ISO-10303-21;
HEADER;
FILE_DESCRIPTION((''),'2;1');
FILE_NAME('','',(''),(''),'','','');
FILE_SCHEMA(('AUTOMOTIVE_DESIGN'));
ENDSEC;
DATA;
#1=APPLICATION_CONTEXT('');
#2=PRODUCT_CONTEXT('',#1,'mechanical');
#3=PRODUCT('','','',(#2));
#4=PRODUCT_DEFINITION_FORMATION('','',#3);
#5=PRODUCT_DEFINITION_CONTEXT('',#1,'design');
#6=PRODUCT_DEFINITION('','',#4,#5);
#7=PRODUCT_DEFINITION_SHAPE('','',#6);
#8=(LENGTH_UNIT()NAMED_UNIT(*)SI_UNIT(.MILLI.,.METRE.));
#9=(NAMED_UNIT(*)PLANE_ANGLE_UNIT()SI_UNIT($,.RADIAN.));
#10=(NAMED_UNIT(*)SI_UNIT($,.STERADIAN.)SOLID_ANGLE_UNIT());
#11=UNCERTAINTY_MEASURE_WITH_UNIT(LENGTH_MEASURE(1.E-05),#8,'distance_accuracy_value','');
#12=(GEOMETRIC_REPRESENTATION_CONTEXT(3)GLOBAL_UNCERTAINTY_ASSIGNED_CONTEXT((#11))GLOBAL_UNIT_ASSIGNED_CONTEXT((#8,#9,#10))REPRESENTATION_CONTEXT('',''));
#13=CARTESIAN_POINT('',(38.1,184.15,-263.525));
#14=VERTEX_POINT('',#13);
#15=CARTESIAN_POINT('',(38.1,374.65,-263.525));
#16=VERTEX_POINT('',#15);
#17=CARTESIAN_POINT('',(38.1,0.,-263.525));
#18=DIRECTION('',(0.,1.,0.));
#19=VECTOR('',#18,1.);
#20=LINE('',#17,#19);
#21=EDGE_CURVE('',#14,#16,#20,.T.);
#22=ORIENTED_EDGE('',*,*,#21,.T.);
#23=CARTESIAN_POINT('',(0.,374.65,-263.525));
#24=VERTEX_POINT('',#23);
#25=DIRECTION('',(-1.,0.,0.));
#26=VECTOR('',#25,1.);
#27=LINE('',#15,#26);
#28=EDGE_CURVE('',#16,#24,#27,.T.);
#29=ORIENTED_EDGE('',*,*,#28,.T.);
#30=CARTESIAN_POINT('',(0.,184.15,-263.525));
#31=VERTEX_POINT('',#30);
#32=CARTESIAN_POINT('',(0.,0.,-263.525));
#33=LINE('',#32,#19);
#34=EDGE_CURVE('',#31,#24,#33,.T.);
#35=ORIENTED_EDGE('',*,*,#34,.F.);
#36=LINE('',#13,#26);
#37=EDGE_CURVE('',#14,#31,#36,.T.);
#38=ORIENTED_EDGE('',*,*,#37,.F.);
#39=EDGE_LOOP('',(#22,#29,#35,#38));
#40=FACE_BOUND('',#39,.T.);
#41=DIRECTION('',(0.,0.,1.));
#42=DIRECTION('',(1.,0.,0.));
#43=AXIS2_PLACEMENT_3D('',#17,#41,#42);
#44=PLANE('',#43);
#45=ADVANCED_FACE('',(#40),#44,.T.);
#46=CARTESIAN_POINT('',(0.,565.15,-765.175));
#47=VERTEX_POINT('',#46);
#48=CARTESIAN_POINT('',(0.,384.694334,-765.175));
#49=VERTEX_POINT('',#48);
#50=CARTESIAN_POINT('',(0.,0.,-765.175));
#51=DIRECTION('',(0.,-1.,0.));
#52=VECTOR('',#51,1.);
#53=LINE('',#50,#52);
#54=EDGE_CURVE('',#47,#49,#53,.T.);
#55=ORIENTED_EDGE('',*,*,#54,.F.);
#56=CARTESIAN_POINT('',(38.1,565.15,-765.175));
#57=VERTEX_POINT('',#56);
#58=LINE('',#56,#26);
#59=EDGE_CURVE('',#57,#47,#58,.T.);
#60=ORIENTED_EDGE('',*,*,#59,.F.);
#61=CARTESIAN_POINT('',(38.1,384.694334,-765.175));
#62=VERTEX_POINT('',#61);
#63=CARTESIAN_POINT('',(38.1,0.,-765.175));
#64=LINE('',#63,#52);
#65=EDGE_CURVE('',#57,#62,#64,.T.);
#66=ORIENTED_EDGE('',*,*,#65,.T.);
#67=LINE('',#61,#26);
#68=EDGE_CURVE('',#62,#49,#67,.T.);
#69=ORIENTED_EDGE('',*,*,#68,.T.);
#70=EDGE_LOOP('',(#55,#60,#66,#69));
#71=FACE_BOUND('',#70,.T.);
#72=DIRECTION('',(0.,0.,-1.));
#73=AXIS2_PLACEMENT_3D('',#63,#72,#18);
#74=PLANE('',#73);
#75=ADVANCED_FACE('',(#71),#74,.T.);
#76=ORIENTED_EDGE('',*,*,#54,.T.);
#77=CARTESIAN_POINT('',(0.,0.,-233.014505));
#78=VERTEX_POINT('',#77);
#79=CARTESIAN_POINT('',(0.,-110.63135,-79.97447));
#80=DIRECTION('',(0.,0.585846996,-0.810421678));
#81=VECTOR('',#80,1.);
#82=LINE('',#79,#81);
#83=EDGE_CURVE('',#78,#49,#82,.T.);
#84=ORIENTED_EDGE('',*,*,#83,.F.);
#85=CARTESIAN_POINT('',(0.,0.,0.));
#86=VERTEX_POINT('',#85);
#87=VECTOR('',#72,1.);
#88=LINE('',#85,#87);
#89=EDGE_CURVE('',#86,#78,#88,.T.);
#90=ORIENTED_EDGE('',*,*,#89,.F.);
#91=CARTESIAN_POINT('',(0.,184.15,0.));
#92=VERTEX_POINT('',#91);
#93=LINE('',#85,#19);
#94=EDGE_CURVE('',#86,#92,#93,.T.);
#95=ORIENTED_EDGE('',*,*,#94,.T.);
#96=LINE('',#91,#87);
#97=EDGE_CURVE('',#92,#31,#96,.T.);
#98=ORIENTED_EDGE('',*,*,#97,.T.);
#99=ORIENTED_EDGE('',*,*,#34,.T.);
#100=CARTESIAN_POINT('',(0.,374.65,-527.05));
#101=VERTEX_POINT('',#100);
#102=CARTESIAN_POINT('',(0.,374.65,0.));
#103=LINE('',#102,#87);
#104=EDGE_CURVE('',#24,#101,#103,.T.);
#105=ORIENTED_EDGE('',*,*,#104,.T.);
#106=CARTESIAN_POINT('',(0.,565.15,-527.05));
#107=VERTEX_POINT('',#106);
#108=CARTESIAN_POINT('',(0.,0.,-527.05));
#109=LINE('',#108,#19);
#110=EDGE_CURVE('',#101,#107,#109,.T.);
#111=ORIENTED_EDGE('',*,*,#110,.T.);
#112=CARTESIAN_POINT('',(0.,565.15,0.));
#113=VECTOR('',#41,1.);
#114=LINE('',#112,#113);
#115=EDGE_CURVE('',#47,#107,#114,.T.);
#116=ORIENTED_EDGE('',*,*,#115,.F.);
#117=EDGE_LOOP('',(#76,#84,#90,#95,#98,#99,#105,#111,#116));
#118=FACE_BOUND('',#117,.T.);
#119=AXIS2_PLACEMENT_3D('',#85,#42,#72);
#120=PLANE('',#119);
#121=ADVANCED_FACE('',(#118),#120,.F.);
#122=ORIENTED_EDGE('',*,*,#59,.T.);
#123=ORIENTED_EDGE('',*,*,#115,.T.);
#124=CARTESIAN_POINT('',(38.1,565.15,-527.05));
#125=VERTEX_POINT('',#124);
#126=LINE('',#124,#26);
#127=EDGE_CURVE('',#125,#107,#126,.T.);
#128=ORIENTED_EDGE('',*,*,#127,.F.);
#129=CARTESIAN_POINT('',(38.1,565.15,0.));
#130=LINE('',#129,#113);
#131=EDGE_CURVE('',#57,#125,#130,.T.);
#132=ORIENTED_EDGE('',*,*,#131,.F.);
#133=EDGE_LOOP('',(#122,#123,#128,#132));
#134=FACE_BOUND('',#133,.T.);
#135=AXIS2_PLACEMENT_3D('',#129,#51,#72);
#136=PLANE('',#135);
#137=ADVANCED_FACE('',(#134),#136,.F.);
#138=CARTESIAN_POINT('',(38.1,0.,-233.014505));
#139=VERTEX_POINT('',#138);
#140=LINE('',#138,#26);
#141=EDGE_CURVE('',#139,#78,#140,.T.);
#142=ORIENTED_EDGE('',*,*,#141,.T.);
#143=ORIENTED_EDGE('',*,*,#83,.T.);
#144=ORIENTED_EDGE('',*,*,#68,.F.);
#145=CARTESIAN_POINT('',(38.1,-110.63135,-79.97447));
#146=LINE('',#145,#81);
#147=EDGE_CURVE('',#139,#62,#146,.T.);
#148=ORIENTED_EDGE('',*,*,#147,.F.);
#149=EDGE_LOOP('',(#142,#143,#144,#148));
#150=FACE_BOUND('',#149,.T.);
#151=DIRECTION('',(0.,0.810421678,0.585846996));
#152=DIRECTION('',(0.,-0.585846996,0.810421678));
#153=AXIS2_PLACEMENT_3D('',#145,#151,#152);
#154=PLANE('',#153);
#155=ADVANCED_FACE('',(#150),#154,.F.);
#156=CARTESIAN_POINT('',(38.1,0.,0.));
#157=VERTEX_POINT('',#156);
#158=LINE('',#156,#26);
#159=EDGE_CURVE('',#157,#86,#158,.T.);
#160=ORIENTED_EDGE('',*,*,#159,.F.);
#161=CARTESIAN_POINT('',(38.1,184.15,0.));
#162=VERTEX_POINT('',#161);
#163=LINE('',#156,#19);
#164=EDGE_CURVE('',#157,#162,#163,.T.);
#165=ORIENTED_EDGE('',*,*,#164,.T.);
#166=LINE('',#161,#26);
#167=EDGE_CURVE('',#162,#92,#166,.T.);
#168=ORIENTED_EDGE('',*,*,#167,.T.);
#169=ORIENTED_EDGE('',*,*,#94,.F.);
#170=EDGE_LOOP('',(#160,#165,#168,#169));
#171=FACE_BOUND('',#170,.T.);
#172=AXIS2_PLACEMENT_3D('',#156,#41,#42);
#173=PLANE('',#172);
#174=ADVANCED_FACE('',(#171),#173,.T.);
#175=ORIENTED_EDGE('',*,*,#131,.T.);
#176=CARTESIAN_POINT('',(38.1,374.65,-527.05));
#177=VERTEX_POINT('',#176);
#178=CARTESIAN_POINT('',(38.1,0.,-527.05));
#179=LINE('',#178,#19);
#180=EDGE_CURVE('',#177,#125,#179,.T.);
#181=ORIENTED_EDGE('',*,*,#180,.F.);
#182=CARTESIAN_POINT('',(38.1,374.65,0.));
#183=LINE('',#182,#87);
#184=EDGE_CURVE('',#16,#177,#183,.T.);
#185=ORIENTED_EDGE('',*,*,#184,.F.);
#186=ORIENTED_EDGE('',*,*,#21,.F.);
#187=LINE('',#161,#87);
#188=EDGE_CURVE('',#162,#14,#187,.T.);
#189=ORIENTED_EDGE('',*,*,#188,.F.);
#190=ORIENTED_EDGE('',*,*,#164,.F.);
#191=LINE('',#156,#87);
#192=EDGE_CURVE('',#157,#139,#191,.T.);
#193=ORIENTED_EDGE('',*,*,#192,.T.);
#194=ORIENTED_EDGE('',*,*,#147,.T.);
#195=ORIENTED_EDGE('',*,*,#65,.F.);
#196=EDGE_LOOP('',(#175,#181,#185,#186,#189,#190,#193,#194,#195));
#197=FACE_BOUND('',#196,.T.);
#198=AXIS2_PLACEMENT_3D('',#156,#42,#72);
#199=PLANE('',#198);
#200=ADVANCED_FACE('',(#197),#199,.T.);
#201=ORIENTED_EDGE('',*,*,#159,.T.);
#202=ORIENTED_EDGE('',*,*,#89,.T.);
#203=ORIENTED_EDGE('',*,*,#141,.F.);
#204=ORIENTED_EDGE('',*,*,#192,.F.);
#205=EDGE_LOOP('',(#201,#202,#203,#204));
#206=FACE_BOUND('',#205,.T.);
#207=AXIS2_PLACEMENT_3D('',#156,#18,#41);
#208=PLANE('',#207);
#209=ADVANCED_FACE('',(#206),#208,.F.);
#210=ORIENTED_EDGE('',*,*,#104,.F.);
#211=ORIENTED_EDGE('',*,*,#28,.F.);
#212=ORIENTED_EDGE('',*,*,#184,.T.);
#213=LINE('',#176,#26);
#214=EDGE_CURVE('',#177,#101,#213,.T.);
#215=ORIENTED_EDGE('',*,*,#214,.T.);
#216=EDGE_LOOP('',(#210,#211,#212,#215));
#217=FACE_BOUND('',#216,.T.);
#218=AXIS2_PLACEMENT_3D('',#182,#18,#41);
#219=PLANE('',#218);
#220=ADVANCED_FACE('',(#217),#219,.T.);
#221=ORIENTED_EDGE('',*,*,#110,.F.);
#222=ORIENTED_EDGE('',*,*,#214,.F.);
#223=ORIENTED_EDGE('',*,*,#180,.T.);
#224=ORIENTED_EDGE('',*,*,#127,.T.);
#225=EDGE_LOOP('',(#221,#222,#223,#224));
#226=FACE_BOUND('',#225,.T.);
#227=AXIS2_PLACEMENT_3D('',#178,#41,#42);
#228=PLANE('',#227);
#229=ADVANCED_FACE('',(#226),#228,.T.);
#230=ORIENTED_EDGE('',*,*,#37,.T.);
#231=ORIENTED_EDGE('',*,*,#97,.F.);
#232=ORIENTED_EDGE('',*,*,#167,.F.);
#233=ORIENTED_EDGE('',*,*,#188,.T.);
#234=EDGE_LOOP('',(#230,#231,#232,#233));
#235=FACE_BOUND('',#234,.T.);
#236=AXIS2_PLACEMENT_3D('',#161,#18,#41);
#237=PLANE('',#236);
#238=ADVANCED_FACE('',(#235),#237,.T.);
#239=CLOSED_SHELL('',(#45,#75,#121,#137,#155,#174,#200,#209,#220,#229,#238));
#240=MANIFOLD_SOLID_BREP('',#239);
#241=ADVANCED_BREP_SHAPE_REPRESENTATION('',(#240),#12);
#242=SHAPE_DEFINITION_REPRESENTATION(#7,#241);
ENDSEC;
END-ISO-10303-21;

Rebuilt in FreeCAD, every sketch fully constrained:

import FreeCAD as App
import Part
import Sketcher

V = App.Vector
Q = App.Units.Quantity

doc = App.newDocument("Part")
params = doc.addObject("Spreadsheet::Sheet", "Params")
for row, (alias, value) in enumerate([
    ("sketch1_width", "7.5 in"),
    ("sketch1_width2", "7.25 in"),
    ("sketch1_height", "9.375 in"),
    ("sketch1_height2", "10.375 in"),
    ("pad1_length", "1.5 in"),
], start=1):
    params.set(f"A{row}", alias)
    params.set(f"B{row}", "=" + value)
    params.setAlias(f"B{row}", alias)

body = doc.addObject("PartDesign::Body", "Body")

sketch1 = body.newObject("Sketcher::SketchObject", "Sketch")
sketch1.AttachmentSupport = (doc.getObject("YZ_Plane"), [""])
sketch1.MapMode = "FlatFace"
sketch1.addGeometry(Part.LineSegment(V(184, 0, 0), V(0, 0, 0)), False)
sketch1.addGeometry(Part.LineSegment(V(0, 0, 0), V(0, -233, 0)), False)
sketch1.addGeometry(Part.LineSegment(V(0, -233, 0), V(385, -765, 0)), False)
sketch1.addGeometry(Part.LineSegment(V(385, -765, 0), V(565, -765, 0)), False)
sketch1.addGeometry(Part.LineSegment(V(565, -765, 0), V(565, -527, 0)), False)
sketch1.addGeometry(Part.LineSegment(V(565, -527, 0), V(375, -527, 0)), False)
sketch1.addGeometry(Part.LineSegment(V(375, -527, 0), V(375, -264, 0)), False)
sketch1.addGeometry(Part.LineSegment(V(375, -264, 0), V(184, -264, 0)), False)
sketch1.addGeometry(Part.LineSegment(V(184, -264, 0), V(184, 0, 0)), False)
sketch1.addConstraint(Sketcher.Constraint("Coincident", 0, 2, 1, 1))
sketch1.addConstraint(Sketcher.Constraint("Coincident", 1, 2, 2, 1))
sketch1.addConstraint(Sketcher.Constraint("Coincident", 2, 2, 3, 1))
sketch1.addConstraint(Sketcher.Constraint("Coincident", 3, 2, 4, 1))
sketch1.addConstraint(Sketcher.Constraint("Coincident", 4, 2, 5, 1))
sketch1.addConstraint(Sketcher.Constraint("Coincident", 5, 2, 6, 1))
sketch1.addConstraint(Sketcher.Constraint("Coincident", 6, 2, 7, 1))
sketch1.addConstraint(Sketcher.Constraint("Coincident", 7, 2, 8, 1))
sketch1.addConstraint(Sketcher.Constraint("Coincident", 8, 2, 0, 1))
sketch1.addConstraint(Sketcher.Constraint("Horizontal", 0))
sketch1.addConstraint(Sketcher.Constraint("Vertical", 1))
sketch1.addConstraint(Sketcher.Constraint("Horizontal", 3))
sketch1.addConstraint(Sketcher.Constraint("Vertical", 4))
sketch1.addConstraint(Sketcher.Constraint("Horizontal", 5))
sketch1.addConstraint(Sketcher.Constraint("Vertical", 6))
sketch1.addConstraint(Sketcher.Constraint("Horizontal", 7))
sketch1.addConstraint(Sketcher.Constraint("Vertical", 8))
sketch1.addConstraint(Sketcher.Constraint("Coincident", 0, 2, -1, 1))
sketch1.addConstraint(Sketcher.Constraint("Equal", 5, 7))
sketch1.addConstraint(Sketcher.Constraint("Equal", 6, 8))
sketch1.addConstraint(Sketcher.Constraint("DistanceX", 5, 2, 5, 1, Q("7.5 in")))
sketch1.addConstraint(Sketcher.Constraint("DistanceX", 0, 2, 0, 1, Q("7.25 in")))
sketch1.addConstraint(Sketcher.Constraint("DistanceY", 4, 1, 4, 2, Q("9.375 in")))
sketch1.addConstraint(Sketcher.Constraint("DistanceY", 6, 1, 6, 2, Q("10.375 in")))
sketch1.addConstraint(Sketcher.Constraint("Distance", 2, Q("656.646421 mm")))
sketch1.addConstraint(Sketcher.Constraint("DistanceX", 3, 1, 3, 2, Q("180.455666 mm")))
sketch1.setExpression("Constraints[20]", "Params.sketch1_width")
sketch1.setExpression("Constraints[21]", "Params.sketch1_width2")
sketch1.setExpression("Constraints[22]", "Params.sketch1_height")
sketch1.setExpression("Constraints[23]", "Params.sketch1_height2")
pad1 = body.newObject("PartDesign::Pad", "Pad")
pad1.Profile = sketch1
pad1.setExpression("Length", "Params.pad1_length")

doc.recompute()
